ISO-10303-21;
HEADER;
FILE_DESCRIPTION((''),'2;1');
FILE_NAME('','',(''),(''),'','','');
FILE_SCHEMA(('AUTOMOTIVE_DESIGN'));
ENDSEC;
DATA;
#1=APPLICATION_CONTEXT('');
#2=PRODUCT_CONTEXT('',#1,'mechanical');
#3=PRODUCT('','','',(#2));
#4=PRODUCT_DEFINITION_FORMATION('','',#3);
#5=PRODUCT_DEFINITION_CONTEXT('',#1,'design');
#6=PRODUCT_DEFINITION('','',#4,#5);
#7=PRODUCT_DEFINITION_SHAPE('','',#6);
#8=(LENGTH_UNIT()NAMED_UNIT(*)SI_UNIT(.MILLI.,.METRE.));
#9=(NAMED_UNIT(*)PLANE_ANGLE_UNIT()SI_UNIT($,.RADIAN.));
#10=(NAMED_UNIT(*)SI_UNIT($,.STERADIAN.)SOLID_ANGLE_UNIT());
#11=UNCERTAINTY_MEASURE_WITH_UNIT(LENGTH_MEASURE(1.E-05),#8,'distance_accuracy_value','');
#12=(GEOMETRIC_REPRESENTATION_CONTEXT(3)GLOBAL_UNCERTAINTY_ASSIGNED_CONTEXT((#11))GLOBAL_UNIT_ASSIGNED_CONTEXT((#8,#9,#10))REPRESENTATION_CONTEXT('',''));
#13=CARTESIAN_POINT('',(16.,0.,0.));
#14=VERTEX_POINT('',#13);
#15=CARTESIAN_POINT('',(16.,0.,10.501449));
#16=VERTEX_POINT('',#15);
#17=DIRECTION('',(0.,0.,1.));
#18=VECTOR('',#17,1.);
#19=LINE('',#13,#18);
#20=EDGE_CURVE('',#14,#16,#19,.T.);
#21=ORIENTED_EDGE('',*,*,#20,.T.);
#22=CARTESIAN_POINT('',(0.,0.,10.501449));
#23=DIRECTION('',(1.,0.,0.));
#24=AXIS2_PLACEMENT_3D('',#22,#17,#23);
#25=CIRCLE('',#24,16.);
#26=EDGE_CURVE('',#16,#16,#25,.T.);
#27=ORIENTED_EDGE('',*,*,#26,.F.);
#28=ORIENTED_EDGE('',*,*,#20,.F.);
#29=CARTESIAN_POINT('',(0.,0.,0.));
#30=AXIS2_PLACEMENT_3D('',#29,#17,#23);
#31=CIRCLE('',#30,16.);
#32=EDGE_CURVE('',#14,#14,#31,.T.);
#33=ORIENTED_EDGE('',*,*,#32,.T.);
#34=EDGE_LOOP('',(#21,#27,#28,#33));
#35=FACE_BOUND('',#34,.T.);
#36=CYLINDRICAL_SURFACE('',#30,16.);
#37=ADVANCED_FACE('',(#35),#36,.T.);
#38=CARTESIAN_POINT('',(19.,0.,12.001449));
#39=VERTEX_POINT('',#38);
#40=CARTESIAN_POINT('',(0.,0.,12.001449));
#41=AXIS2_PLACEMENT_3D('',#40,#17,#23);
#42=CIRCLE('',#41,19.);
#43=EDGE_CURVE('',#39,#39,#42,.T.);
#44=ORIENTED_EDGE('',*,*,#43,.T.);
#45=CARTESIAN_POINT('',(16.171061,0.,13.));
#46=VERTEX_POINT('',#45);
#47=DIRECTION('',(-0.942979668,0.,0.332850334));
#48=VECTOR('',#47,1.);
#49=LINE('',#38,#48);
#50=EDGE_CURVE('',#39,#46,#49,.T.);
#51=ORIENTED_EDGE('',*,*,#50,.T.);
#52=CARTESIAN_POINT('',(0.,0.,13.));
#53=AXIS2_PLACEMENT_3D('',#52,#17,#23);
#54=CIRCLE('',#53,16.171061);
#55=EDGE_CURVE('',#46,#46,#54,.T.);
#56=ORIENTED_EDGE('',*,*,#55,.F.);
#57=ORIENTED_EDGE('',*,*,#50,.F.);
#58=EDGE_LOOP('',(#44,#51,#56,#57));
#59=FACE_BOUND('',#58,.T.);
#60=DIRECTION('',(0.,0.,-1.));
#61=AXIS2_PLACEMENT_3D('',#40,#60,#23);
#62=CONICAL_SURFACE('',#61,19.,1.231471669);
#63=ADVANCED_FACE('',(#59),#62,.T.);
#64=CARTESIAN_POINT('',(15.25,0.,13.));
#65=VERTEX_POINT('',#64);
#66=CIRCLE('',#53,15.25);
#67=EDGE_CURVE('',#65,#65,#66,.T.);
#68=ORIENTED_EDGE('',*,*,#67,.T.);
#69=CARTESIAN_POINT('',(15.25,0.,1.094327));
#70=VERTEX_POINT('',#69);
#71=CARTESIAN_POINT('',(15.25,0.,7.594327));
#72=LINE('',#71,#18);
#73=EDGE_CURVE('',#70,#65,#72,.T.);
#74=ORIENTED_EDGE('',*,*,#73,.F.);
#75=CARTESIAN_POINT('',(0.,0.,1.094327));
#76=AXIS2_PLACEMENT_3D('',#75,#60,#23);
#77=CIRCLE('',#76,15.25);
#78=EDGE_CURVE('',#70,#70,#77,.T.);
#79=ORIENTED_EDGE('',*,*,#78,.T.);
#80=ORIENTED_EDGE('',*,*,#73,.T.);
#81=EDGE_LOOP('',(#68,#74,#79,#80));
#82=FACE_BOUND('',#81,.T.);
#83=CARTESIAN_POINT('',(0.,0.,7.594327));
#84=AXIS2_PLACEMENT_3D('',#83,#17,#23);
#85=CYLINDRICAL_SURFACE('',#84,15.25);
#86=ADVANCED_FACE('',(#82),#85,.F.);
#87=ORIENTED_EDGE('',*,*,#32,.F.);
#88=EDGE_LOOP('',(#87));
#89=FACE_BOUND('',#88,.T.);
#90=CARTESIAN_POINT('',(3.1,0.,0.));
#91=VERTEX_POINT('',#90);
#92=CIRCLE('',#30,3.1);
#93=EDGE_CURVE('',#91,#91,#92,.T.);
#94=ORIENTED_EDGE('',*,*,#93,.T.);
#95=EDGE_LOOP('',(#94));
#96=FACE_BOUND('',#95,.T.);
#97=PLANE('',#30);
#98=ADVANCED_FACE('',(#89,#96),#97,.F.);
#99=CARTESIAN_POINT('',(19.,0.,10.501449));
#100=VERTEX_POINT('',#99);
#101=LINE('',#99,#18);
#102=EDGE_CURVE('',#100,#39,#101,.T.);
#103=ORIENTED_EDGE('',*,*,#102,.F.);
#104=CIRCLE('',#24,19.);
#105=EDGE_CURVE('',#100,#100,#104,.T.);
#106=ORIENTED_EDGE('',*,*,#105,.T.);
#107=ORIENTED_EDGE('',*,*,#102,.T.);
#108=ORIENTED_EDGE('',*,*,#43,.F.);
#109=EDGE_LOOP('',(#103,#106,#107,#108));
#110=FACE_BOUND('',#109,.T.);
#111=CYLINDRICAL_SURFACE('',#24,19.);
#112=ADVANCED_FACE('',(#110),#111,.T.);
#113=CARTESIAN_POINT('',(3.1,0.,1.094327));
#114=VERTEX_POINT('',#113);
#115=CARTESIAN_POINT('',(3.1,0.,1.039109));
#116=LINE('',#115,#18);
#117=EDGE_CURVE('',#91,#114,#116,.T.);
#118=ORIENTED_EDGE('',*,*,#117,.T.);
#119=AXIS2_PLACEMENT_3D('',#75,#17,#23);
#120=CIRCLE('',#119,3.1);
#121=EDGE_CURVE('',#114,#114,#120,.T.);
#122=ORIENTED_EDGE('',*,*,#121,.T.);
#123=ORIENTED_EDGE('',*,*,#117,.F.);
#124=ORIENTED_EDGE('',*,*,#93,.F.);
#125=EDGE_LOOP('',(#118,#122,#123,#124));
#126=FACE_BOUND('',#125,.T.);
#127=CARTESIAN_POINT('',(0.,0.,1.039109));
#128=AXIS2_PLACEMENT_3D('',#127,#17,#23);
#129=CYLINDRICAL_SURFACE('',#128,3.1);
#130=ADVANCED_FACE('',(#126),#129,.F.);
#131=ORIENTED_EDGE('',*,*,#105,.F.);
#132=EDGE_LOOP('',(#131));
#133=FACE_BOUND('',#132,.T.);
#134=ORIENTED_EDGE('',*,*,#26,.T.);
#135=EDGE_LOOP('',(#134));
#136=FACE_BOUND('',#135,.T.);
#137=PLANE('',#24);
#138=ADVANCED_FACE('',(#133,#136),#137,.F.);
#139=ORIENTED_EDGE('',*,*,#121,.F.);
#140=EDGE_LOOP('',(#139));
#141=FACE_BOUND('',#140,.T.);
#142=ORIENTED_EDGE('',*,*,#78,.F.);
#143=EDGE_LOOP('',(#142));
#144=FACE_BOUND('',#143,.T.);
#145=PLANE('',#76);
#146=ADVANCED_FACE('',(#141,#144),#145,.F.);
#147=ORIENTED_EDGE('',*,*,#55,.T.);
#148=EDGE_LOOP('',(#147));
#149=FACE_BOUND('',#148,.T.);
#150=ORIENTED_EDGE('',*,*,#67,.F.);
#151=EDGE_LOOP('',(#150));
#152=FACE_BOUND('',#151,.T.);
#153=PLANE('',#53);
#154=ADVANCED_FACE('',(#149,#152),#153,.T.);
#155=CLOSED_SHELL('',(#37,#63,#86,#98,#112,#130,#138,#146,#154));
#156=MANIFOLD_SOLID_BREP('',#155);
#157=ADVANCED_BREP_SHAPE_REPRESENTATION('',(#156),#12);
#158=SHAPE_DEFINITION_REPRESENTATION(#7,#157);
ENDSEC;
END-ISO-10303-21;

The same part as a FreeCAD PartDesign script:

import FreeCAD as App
import Part
import Sketcher

doc = App.newDocument("Part")
params = doc.addObject("Spreadsheet::Sheet", "Params")
for row, (alias, value) in enumerate([
    ("sketch1_width", "16 mm"),
    ("sketch1_width2", "3 mm"),
    ("sketch1_height", "13 mm"),
    ("sketch1_length", "3 mm"),
    ("sketch1_height2", "1.5 mm"),
    ("revolution_angle", "360 deg"),
    ("sketch2_height", "13 mm"),
    ("sketch2_width", "15.25 mm"),
    ("revolution2_angle", "360 deg"),
    ("sketch3_width", "3.1 mm"),
    ("revolution3_angle", "360 deg"),
], start=1):
    params.set(f"A{row}", alias)
    params.set(f"B{row}", "=" + value)
    params.setAlias(f"B{row}", alias)

body = doc.addObject("PartDesign::Body", "Body")

# Sketch on XZ plane
sketch1 = body.newObject("Sketcher::SketchObject", "Sketch")
sketch1.AttachmentSupport = (doc.getObject("XZ_Plane"), [""])
sketch1.MapMode = "FlatFace"
sketch1.addGeometry(Part.LineSegment(App.Vector(16.2, 13, 0), App.Vector(0, 13, 0)), False)
sketch1.addGeometry(Part.LineSegment(App.Vector(0, 13, 0), App.Vector(0, 0, 0)), False)
sketch1.addGeometry(Part.LineSegment(App.Vector(0, 0, 0), App.Vector(16, 0, 0)), False)
sketch1.addGeometry(Part.LineSegment(App.Vector(16, 0, 0), App.Vector(16, 10.5, 0)), False)
sketch1.addGeometry(Part.LineSegment(App.Vector(16, 10.5, 0), App.Vector(19, 10.5, 0)), False)
sketch1.addGeometry(Part.LineSegment(App.Vector(19, 10.5, 0), App.Vector(19, 12, 0)), False)
sketch1.addGeometry(Part.LineSegment(App.Vector(19, 12, 0), App.Vector(16.2, 13, 0)), False)
sketch1.addConstraint(Sketcher.Constraint("Coincident", 0, 2, 1, 1))
sketch1.addConstraint(Sketcher.Constraint("Coincident", 1, 2, 2, 1))
sketch1.addConstraint(Sketcher.Constraint("Coincident", 2, 2, 3, 1))
sketch1.addConstraint(Sketcher.Constraint("Coincident", 3, 2, 4, 1))
sketch1.addConstraint(Sketcher.Constraint("Coincident", 4, 2, 5, 1))
sketch1.addConstraint(Sketcher.Constraint("Coincident", 5, 2, 6, 1))
sketch1.addConstraint(Sketcher.Constraint("Coincident", 6, 2, 0, 1))
sketch1.addConstraint(Sketcher.Constraint("Horizontal", 0))
sketch1.addConstraint(Sketcher.Constraint("Vertical", 1))
sketch1.addConstraint(Sketcher.Constraint("Horizontal", 2))
sketch1.addConstraint(Sketcher.Constraint("Vertical", 3))
sketch1.addConstraint(Sketcher.Constraint("Horizontal", 4))
sketch1.addConstraint(Sketcher.Constraint("Vertical", 5))
sketch1.addConstraint(Sketcher.Constraint("Coincident", 1, 2, -1, 1))
sketch1.addConstraint(Sketcher.Constraint("DistanceX", 2, 1, 2, 2, 16.0))
sketch1.addConstraint(Sketcher.Constraint("DistanceX", 4, 1, 4, 2, 3.0))
sketch1.addConstraint(Sketcher.Constraint("DistanceY", 1, 2, 1, 1, 13.0))
sketch1.addConstraint(Sketcher.Constraint("Distance", 6, 3.0))
sketch1.addConstraint(Sketcher.Constraint("DistanceY", 5, 1, 5, 2, 1.5))
sketch1.addConstraint(Sketcher.Constraint("DistanceX", 0, 2, 0, 1, 16.171061))
sketch1.setExpression("Constraints[14]", "Params.sketch1_width")
sketch1.setExpression("Constraints[15]", "Params.sketch1_width2")
sketch1.setExpression("Constraints[16]", "Params.sketch1_height")
sketch1.setExpression("Constraints[17]", "Params.sketch1_length")
sketch1.setExpression("Constraints[18]", "Params.sketch1_height2")
revolution = body.newObject("PartDesign::Revolution", "Revolution")
revolution.Profile = sketch1
revolution.ReferenceAxis = (sketch1, ["V_Axis"])
revolution.setExpression("Angle", "Params.revolution_angle")
body2 = doc.addObject("PartDesign::Body", "Body001")

# Sketch on XZ plane
sketch2 = body2.newObject("Sketcher::SketchObject", "Sketch001")
sketch2.AttachmentSupport = (doc.getObject("XZ_Plane001"), [""])
sketch2.MapMode = "FlatFace"
sketch2.addGeometry(Part.LineSegment(App.Vector(0, 14, 0), App.Vector(0, 1, 0)), False)
sketch2.addGeometry(Part.LineSegment(App.Vector(0, 1, 0), App.Vector(15, 1, 0)), False)
sketch2.addGeometry(Part.LineSegment(App.Vector(15, 1, 0), App.Vector(15, 14, 0)), False)
sketch2.addGeometry(Part.LineSegment(App.Vector(15, 14, 0), App.Vector(0, 14, 0)), False)
sketch2.addConstraint(Sketcher.Constraint("Coincident", 0, 2, 1, 1))
sketch2.addConstraint(Sketcher.Constraint("Coincident", 1, 2, 2, 1))
sketch2.addConstraint(Sketcher.Constraint("Coincident", 2, 2, 3, 1))
sketch2.addConstraint(Sketcher.Constraint("Coincident", 3, 2, 0, 1))
sketch2.addConstraint(Sketcher.Constraint("Vertical", 0))
sketch2.addConstraint(Sketcher.Constraint("Horizontal", 1))
sketch2.addConstraint(Sketcher.Constraint("Vertical", 2))
sketch2.addConstraint(Sketcher.Constraint("Horizontal", 3))
sketch2.addConstraint(Sketcher.Constraint("PointOnObject", 0, 2, -2))
sketch2.addConstraint(Sketcher.Constraint("DistanceY", 0, 2, 0, 1, 13.0))
sketch2.addConstraint(Sketcher.Constraint("DistanceX", 1, 1, 1, 2, 15.25))
sketch2.addConstraint(Sketcher.Constraint("DistanceY", -1, 1, 0, 2, 1.094327))
sketch2.setExpression("Constraints[9]", "Params.sketch2_height")
sketch2.setExpression("Constraints[10]", "Params.sketch2_width")
revolution2 = body2.newObject("PartDesign::Revolution", "Revolution001")
revolution2.Profile = sketch2
revolution2.ReferenceAxis = (sketch2, ["V_Axis"])
revolution2.setExpression("Angle", "Params.revolution2_angle")
doc.recompute()

boolean = body.newObject("PartDesign::Boolean", "Boolean")
boolean.Type = "Cut"
boolean.addObjects([body2])
body3 = doc.addObject("PartDesign::Body", "Body002")

# Sketch on XZ plane
sketch3 = body3.newObject("Sketcher::SketchObject", "Sketch002")
sketch3.AttachmentSupport = (doc.getObject("XZ_Plane002"), [""])
sketch3.MapMode = "FlatFace"
sketch3.addGeometry(Part.LineSegment(App.Vector(0, 3.1, 0), App.Vector(0, -1.1, 0)), False)
sketch3.addGeometry(Part.LineSegment(App.Vector(0, -1.1, 0), App.Vector(3.1, -1.1, 0)), False)
sketch3.addGeometry(Part.LineSegment(App.Vector(3.1, -1.1, 0), App.Vector(3.1, 3.1, 0)), False)
sketch3.addGeometry(Part.LineSegment(App.Vector(3.1, 3.1, 0), App.Vector(0, 3.1, 0)), False)
sketch3.addConstraint(Sketcher.Constraint("Coincident", 0, 2, 1, 1))
sketch3.addConstraint(Sketcher.Constraint("Coincident", 1, 2, 2, 1))
sketch3.addConstraint(Sketcher.Constraint("Coincident", 2, 2, 3, 1))
sketch3.addConstraint(Sketcher.Constraint("Coincident", 3, 2, 0, 1))
sketch3.addConstraint(Sketcher.Constraint("Vertical", 0))
sketch3.addConstraint(Sketcher.Constraint("Horizontal", 1))
sketch3.addConstraint(Sketcher.Constraint("Vertical", 2))
sketch3.addConstraint(Sketcher.Constraint("Horizontal", 3))
sketch3.addConstraint(Sketcher.Constraint("PointOnObject", 0, 2, -2))
sketch3.addConstraint(Sketcher.Constraint("DistanceX", 1, 1, 1, 2, 3.1))
sketch3.addConstraint(Sketcher.Constraint("DistanceY", 0, 2, 0, 1, 4.190033))
sketch3.addConstraint(Sketcher.Constraint("DistanceY", 0, 2, -1, 1, 1.055907))
sketch3.setExpression("Constraints[9]", "Params.sketch3_width")
revolution3 = body3.newObject("PartDesign::Revolution", "Revolution002")
revolution3.Profile = sketch3
revolution3.ReferenceAxis = (sketch3, ["V_Axis"])
revolution3.setExpression("Angle", "Params.revolution3_angle")
doc.recompute()

boolean2 = body.newObject("PartDesign::Boolean", "Boolean001")
boolean2.Type = "Cut"
boolean2.addObjects([body3])

doc.recompute()
